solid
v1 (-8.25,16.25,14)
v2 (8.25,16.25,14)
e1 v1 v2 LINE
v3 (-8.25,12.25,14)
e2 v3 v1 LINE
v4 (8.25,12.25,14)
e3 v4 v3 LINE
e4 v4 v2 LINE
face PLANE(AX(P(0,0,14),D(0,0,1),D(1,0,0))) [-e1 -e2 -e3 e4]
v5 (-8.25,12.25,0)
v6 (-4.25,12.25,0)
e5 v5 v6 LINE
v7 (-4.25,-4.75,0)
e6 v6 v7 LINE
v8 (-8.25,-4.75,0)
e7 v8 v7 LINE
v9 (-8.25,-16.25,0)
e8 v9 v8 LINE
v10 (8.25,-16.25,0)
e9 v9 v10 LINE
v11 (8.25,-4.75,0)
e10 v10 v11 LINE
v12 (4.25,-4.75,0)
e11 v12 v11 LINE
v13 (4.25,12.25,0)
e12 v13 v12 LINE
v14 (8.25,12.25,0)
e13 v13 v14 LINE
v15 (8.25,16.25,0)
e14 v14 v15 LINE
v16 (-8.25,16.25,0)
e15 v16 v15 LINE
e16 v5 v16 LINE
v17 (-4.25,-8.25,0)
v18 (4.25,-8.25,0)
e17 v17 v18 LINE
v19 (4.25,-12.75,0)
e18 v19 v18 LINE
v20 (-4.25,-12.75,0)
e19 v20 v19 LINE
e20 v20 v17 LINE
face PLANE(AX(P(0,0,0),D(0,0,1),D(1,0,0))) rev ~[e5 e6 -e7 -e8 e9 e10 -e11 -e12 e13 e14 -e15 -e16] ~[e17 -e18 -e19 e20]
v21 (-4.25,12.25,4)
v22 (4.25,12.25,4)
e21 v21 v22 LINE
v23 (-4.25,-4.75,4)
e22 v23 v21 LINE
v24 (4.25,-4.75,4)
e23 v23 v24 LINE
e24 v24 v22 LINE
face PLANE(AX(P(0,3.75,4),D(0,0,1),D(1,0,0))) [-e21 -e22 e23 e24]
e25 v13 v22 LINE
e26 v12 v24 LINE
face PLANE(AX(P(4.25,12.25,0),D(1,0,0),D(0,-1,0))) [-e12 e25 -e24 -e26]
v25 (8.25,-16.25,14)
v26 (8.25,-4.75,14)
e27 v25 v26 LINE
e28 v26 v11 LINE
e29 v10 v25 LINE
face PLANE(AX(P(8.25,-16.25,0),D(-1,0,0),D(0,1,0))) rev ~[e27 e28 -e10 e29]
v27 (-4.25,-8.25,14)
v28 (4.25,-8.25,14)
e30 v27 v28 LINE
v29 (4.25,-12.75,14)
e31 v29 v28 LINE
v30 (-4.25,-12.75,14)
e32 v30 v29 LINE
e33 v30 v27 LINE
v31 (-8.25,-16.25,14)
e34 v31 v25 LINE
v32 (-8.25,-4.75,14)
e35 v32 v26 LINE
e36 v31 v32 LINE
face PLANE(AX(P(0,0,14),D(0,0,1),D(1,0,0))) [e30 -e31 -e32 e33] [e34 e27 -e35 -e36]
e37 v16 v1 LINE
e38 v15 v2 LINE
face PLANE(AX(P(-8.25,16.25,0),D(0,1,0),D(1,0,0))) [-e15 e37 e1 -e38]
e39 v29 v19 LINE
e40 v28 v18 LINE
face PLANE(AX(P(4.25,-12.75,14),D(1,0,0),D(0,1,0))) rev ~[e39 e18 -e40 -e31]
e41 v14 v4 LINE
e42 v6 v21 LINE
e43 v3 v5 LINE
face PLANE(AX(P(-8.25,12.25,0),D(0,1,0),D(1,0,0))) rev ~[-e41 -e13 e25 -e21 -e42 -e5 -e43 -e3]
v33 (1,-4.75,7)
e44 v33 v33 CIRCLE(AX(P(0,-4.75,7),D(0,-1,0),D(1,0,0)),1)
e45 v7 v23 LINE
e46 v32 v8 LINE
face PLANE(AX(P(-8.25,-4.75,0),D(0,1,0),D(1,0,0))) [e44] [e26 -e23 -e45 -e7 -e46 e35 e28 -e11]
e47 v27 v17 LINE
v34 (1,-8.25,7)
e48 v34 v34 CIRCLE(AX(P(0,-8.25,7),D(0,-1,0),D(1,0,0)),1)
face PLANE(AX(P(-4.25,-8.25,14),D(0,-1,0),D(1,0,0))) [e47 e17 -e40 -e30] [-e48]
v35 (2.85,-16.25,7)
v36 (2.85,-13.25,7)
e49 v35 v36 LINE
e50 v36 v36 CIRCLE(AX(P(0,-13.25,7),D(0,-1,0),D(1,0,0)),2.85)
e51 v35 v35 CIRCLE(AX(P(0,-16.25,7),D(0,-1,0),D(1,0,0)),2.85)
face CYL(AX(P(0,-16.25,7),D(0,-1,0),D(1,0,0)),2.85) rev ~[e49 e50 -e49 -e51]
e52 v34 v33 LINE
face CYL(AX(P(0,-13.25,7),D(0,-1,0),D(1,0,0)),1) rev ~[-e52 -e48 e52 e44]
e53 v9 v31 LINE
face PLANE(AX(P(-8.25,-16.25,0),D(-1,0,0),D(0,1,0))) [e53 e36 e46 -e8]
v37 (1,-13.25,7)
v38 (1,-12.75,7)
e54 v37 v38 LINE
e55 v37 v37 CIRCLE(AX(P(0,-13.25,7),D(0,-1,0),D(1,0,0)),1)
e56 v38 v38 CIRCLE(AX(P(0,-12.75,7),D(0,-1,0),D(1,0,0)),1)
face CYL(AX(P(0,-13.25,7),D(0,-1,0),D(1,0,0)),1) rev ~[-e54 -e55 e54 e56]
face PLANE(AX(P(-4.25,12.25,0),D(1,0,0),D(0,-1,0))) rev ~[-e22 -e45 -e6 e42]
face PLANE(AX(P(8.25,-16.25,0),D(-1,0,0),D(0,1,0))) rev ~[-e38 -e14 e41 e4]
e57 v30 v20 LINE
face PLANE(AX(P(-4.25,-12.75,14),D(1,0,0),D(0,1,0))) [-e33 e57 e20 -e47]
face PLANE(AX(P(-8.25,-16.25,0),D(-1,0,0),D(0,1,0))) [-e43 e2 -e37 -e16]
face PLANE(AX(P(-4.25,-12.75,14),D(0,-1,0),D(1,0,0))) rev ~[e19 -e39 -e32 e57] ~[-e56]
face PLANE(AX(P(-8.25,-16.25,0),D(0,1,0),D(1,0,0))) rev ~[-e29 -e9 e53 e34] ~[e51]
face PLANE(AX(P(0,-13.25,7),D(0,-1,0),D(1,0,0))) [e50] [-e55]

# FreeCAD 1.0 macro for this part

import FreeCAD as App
import Part
import Sketcher

V = App.Vector
Q = App.Units.Quantity

doc = App.newDocument("Part")
params = doc.addObject("Spreadsheet::Sheet", "Params")
for row, (alias, value) in enumerate([
    ("sketch1_width", "16.5 mm"),
    ("sketch1_height", "32.5 mm"),
    ("pad1_length", "14 mm"),
    ("sketch2_height", "17 mm"),
    ("sketch2_width", "16.5 mm"),
    ("pocket1_length", "10 mm"),
    ("sketch3_width", "4 mm"),
    ("sketch3_height", "17 mm"),
    ("sketch4_width", "8.5 mm"),
    ("sketch4_height", "4.5 mm"),
    ("sketch5_diameter", "5.7 mm"),
    ("pocket4_length", "3 mm"),
    ("sketch6_diameter", "2 mm"),
    ("pocket5_length", "10 mm"),
], start=1):
    params.set(f"A{row}", alias)
    params.set(f"B{row}", "=" + value)
    params.setAlias(f"B{row}", alias)

body = doc.addObject("PartDesign::Body", "Body")

# Sketch on XY plane
sketch1 = body.newObject("Sketcher::SketchObject", "Sketch")
sketch1.AttachmentSupport = (doc.getObject("XY_Plane"), [""])
sketch1.MapMode = "FlatFace"
sketch1.addGeometry(Part.LineSegment(V(-8, 16, 0), V(-8, -16, 0)), False)
sketch1.addGeometry(Part.LineSegment(V(-8, -16, 0), V(8, -16, 0)), False)
sketch1.addGeometry(Part.LineSegment(V(8, -16, 0), V(8, 16, 0)), False)
sketch1.addGeometry(Part.LineSegment(V(8, 16, 0), V(-8, 16, 0)), False)
sketch1.addConstraint(Sketcher.Constraint("Coincident", 0, 2, 1, 1))
sketch1.addConstraint(Sketcher.Constraint("Coincident", 1, 2, 2, 1))
sketch1.addConstraint(Sketcher.Constraint("Coincident", 2, 2, 3, 1))
sketch1.addConstraint(Sketcher.Constraint("Coincident", 3, 2, 0, 1))
sketch1.addConstraint(Sketcher.Constraint("Vertical", 0))
sketch1.addConstraint(Sketcher.Constraint("Horizontal", 1))
sketch1.addConstraint(Sketcher.Constraint("Vertical", 2))
sketch1.addConstraint(Sketcher.Constraint("Horizontal", 3))
sketch1.addConstraint(Sketcher.Constraint("Symmetric", 0, 2, 2, 2, -1, 1))
sketch1.addConstraint(Sketcher.Constraint("DistanceX", 1, 1, 1, 2, Q("16.5 mm")))
sketch1.addConstraint(Sketcher.Constraint("DistanceY", 0, 2, 0, 1, Q("32.5 mm")))
sketch1.setExpression("Constraints[9]", "Params.sketch1_width")
sketch1.setExpression("Constraints[10]", "Params.sketch1_height")
pad1 = body.newObject("PartDesign::Pad", "Pad")
pad1.Profile = sketch1
pad1.setExpression("Length", "Params.pad1_length")

# Sketch on XY plane
sketch2 = body.newObject("Sketcher::SketchObject", "Sketch001")
sketch2.AttachmentSupport = (doc.getObject("XY_Plane"), [""])
sketch2.MapMode = "FlatFace"
sketch2.AttachmentOffset = App.Placement(V(0, 0, 14), App.Rotation())
sketch2.addGeometry(Part.LineSegment(V(-8, 12, 0), V(-8, -5, 0)), False)
sketch2.addGeometry(Part.LineSegment(V(-8, -5, 0), V(8, -5, 0)), False)
sketch2.addGeometry(Part.LineSegment(V(8, -5, 0), V(8, 12, 0)), False)
sketch2.addGeometry(Part.LineSegment(V(8, 12, 0), V(-8, 12, 0)), False)
sketch2.addConstraint(Sketcher.Constraint("Coincident", 0, 2, 1, 1))
sketch2.addConstraint(Sketcher.Constraint("Coincident", 1, 2, 2, 1))
sketch2.addConstraint(Sketcher.Constraint("Coincident", 2, 2, 3, 1))
sketch2.addConstraint(Sketcher.Constraint("Coincident", 3, 2, 0, 1))
sketch2.addConstraint(Sketcher.Constraint("Vertical", 0))
sketch2.addConstraint(Sketcher.Constraint("Horizontal", 1))
sketch2.addConstraint(Sketcher.Constraint("Vertical", 2))
sketch2.addConstraint(Sketcher.Constraint("Horizontal", 3))
sketch2.addConstraint(Sketcher.Constraint("DistanceY", 0, 2, 0, 1, Q("17 mm")))
sketch2.addConstraint(Sketcher.Constraint("DistanceX", 1, 1, 1, 2, Q("16.5 mm")))
sketch2.addConstraint(Sketcher.Constraint("DistanceX", 0, 2, -1, 1, Q("8.25 mm")))
sketch2.addConstraint(Sketcher.Constraint("DistanceY", 0, 2, -1, 1, Q("4.75 mm")))
sketch2.setExpression("Constraints[8]", "Params.sketch2_height")
sketch2.setExpression("Constraints[9]", "Params.sketch2_width")
pocket1 = body.newObject("PartDesign::Pocket", "Pocket")
pocket1.Profile = sketch2
pocket1.setExpression("Length", "Params.pocket1_length")

# Sketch on XY plane
sketch3 = body.newObject("Sketcher::SketchObject", "Sketch002")
sketch3.AttachmentSupport = (doc.getObject("XY_Plane"), [""])
sketch3.MapMode = "FlatFace"
sketch3.addGeometry(Part.LineSegment(V(-8.2, -4.8, 0), V(-8.2, 12.2, 0)), False)
sketch3.addGeometry(Part.LineSegment(V(-8.2, 12.2, 0), V(-4.2, 12.2, 0)), False)
sketch3.addGeometry(Part.LineSegment(V(-4.2, 12.2, 0), V(-4.2, -4.8, 0)), False)
sketch3.addGeometry(Part.LineSegment(V(-4.2, -4.8, 0), V(-8.2, -4.8, 0)), False)
sketch3.addGeometry(Part.LineSegment(V(4.2, -4.8, 0), V(4.2, 12.2, 0)), False)
sketch3.addGeometry(Part.LineSegment(V(4.2, 12.2, 0), V(8.2, 12.2, 0)), False)
sketch3.addGeometry(Part.LineSegment(V(8.2, 12.2, 0), V(8.2, -4.8, 0)), False)
sketch3.addGeometry(Part.LineSegment(V(8.2, -4.8, 0), V(4.2, -4.8, 0)), False)
sketch3.addConstraint(Sketcher.Constraint("Coincident", 0, 2, 1, 1))
sketch3.addConstraint(Sketcher.Constraint("Coincident", 1, 2, 2, 1))
sketch3.addConstraint(Sketcher.Constraint("Coincident", 2, 2, 3, 1))
sketch3.addConstraint(Sketcher.Constraint("Coincident", 3, 2, 0, 1))
sketch3.addConstraint(Sketcher.Constraint("Coincident", 4, 2, 5, 1))
sketch3.addConstraint(Sketcher.Constraint("Coincident", 5, 2, 6, 1))
sketch3.addConstraint(Sketcher.Constraint("Coincident", 6, 2, 7, 1))
sketch3.addConstraint(Sketcher.Constraint("Coincident", 7, 2, 4, 1))
sketch3.addConstraint(Sketcher.Constraint("Vertical", 0))
sketch3.addConstraint(Sketcher.Constraint("Horizontal", 1))
sketch3.addConstraint(Sketcher.Constraint("Vertical", 2))
sketch3.addConstraint(Sketcher.Constraint("Horizontal", 3))
sketch3.addConstraint(Sketcher.Constraint("Vertical", 4))
sketch3.addConstraint(Sketcher.Constraint("Horizontal", 5))
sketch3.addConstraint(Sketcher.Constraint("Vertical", 6))
sketch3.addConstraint(Sketcher.Constraint("Horizontal", 7))
sketch3.addConstraint(Sketcher.Constraint("Symmetric", 1, 2, 4, 2, -2))
sketch3.addConstraint(Sketcher.Constraint("Symmetric", 3, 2, 6, 2, -2))
sketch3.addConstraint(Sketcher.Constraint("DistanceX", 1, 1, 1, 2, Q("4 mm")))
sketch3.addConstraint(Sketcher.Constraint("DistanceY", 0, 1, 0, 2, Q("17 mm")))
sketch3.addConstraint(Sketcher.Constraint("DistanceX", 1, 2, 4, 2, Q("8.5 mm")))
sketch3.addConstraint(Sketcher.Constraint("DistanceY", -1, 1, 0, 2, Q("12.25 mm")))
sketch3.setExpression("Constraints[18]", "Params.sketch3_width")
sketch3.setExpression("Constraints[19]", "Params.sketch3_height")
pocket2 = body.newObject("PartDesign::Pocket", "Pocket001")
pocket2.Profile = sketch3
pocket2.Type = "ThroughAll"
pocket2.Reversed = True

# Sketch on XY plane
sketch4 = body.newObject("Sketcher::SketchObject", "Sketch003")
sketch4.AttachmentSupport = (doc.getObject("XY_Plane"), [""])
sketch4.MapMode = "FlatFace"
sketch4.AttachmentOffset = App.Placement(V(0, 0, 14), App.Rotation())
sketch4.addGeometry(Part.LineSegment(V(-4.2, -8.2, 0), V(-4.2, -12.8, 0)), False)
sketch4.addGeometry(Part.LineSegment(V(-4.2, -12.8, 0), V(4.2, -12.8, 0)), False)
sketch4.addGeometry(Part.LineSegment(V(4.2, -12.8, 0), V(4.2, -8.2, 0)), False)
sketch4.addGeometry(Part.LineSegment(V(4.2, -8.2, 0), V(-4.2, -8.2, 0)), False)
sketch4.addConstraint(Sketcher.Constraint("Coincident", 0, 2, 1, 1))
sketch4.addConstraint(Sketcher.Constraint("Coincident", 1, 2, 2, 1))
sketch4.addConstraint(Sketcher.Constraint("Coincident", 2, 2, 3, 1))
sketch4.addConstraint(Sketcher.Constraint("Coincident", 3, 2, 0, 1))
sketch4.addConstraint(Sketcher.Constraint("Vertical", 0))
sketch4.addConstraint(Sketcher.Constraint("Horizontal", 1))
sketch4.addConstraint(Sketcher.Constraint("Vertical", 2))
sketch4.addConstraint(Sketcher.Constraint("Horizontal", 3))
sketch4.addConstraint(Sketcher.Constraint("DistanceX", 1, 1, 1, 2, Q("8.5 mm")))
sketch4.addConstraint(Sketcher.Constraint("DistanceY", 0, 2, 0, 1, Q("4.5 mm")))
sketch4.addConstraint(Sketcher.Constraint("DistanceX", 0, 2, -1, 1, Q("4.25 mm")))
sketch4.addConstraint(Sketcher.Constraint("DistanceY", 0, 2, -1, 1, Q("12.75 mm")))
sketch4.setExpression("Constraints[8]", "Params.sketch4_width")
sketch4.setExpression("Constraints[9]", "Params.sketch4_height")
pocket3 = body.newObject("PartDesign::Pocket", "Pocket002")
pocket3.Profile = sketch4
pocket3.Type = "ThroughAll"

# Sketch on XZ plane
sketch5 = body.newObject("Sketcher::SketchObject", "Sketch004")
sketch5.AttachmentSupport = (doc.getObject("XZ_Plane"), [""])
sketch5.MapMode = "FlatFace"
sketch5.AttachmentOffset = App.Placement(V(0, 0, 16.25), App.Rotation())
sketch5.addGeometry(Part.Circle(V(0, 7, 0), V(0, 0, 1), 2.9), False)
sketch5.addConstraint(Sketcher.Constraint("PointOnObject", 0, 3, -2))
sketch5.addConstraint(Sketcher.Constraint("Diameter", 0, Q("5.7 mm")))
sketch5.addConstraint(Sketcher.Constraint("DistanceY", -1, 1, 0, 3, Q("7 mm")))
sketch5.setExpression("Constraints[1]", "Params.sketch5_diameter")
pocket4 = body.newObject("PartDesign::Pocket", "Pocket003")
pocket4.Profile = sketch5
pocket4.setExpression("Length", "Params.pocket4_length")

# Sketch on XZ plane
sketch6 = body.newObject("Sketcher::SketchObject", "Sketch005")
sketch6.AttachmentSupport = (doc.getObject("XZ_Plane"), [""])
sketch6.MapMode = "FlatFace"
sketch6.AttachmentOffset = App.Placement(V(0, 0, 13.25), App.Rotation())
sketch6.addGeometry(Part.Circle(V(0, 7, 0), V(0, 0, 1), 1), False)
sketch6.addConstraint(Sketcher.Constraint("PointOnObject", 0, 3, -2))
sketch6.addConstraint(Sketcher.Constraint("Diameter", 0, Q("2 mm")))
sketch6.addConstraint(Sketcher.Constraint("DistanceY", -1, 1, 0, 3, Q("7 mm")))
sketch6.setExpression("Constraints[1]", "Params.sketch6_diameter")
pocket5 = body.newObject("PartDesign::Pocket", "Pocket004")
pocket5.Profile = sketch6
pocket5.setExpression("Length", "Params.pocket5_length")

doc.recompute()
